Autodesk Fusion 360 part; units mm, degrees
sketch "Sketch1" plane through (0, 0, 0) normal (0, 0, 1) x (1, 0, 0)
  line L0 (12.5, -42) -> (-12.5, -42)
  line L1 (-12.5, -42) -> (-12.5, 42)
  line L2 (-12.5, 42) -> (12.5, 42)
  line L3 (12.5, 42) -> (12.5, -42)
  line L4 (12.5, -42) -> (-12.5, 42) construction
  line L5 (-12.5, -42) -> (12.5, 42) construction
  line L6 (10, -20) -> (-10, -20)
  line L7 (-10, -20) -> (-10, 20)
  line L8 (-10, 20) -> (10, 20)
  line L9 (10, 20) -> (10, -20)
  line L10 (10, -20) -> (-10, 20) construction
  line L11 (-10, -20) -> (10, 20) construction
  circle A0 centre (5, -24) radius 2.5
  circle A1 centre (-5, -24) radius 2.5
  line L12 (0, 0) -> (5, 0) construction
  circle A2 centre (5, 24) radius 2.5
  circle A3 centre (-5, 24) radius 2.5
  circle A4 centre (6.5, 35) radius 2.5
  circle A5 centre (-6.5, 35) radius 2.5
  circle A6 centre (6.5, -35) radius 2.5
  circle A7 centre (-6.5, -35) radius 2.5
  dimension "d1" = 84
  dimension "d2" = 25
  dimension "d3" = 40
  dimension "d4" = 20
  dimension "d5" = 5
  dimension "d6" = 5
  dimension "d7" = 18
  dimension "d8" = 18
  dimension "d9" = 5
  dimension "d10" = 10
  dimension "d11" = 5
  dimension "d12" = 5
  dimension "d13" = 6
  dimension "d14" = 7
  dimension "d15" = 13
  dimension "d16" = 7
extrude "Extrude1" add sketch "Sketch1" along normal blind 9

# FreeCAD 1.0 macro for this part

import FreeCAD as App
import Part
import Sketcher
from FreeCAD import Vector
Q = App.Units.Quantity


def add_polygon(sketch, points):
    """Adds a closed chain of lines whose ends are joined by coincident constraints."""
    first, n = sketch.GeometryCount, len(points)
    for a, b in zip(points, points[1:] + points[:1]):
        sketch.addGeometry(Part.LineSegment(App.Vector(*a, 0), App.Vector(*b, 0)), False)
    for i in range(n):
        sketch.addConstraint(Sketcher.Constraint("Coincident", first + i, 2, first + (i + 1) % n, 1))

doc = App.newDocument("Part")
body = doc.addObject("PartDesign::Body", "Body")

# Sketch on XY plane
sketch1 = doc.addObject("Sketcher::SketchObject", "Sketch")
body.addObject(sketch1)
sketch1.AttachmentSupport = (doc.XY_Plane, [""])
sketch1.MapMode = "FlatFace"
add_polygon(sketch1, [(-12.5, -42), (12.5, -42), (12.5, 42), (-12.5, 42)])  # lines 0-3
sketch1.addGeometry(Part.Circle(Vector(-6.5, -35, 0), Vector(0, 0, 1), 2.5), False)  # 4
sketch1.addGeometry(Part.Circle(Vector(-5, -24, 0), Vector(0, 0, 1), 2.5), False)  # 5
sketch1.addGeometry(Part.Circle(Vector(5, -24, 0), Vector(0, 0, 1), 2.5), False)  # 6
sketch1.addGeometry(Part.Circle(Vector(6.5, -35, 0), Vector(0, 0, 1), 2.5), False)  # 7
sketch1.addGeometry(Part.Circle(Vector(-6.5, 35, 0), Vector(0, 0, 1), 2.5), False)  # 8
sketch1.addGeometry(Part.Circle(Vector(-5, 24, 0), Vector(0, 0, 1), 2.5), False)  # 9
add_polygon(sketch1, [(10, 20), (10, -20), (-10, -20), (-10, 20)])  # lines 10-13
sketch1.addGeometry(Part.Circle(Vector(5, 24, 0), Vector(0, 0, 1), 2.5), False)  # 14
sketch1.addGeometry(Part.Circle(Vector(6.5, 35, 0), Vector(0, 0, 1), 2.5), False)  # 15
sketch1.addConstraint(Sketcher.Constraint("Horizontal", 0))
sketch1.addConstraint(Sketcher.Constraint("Vertical", 1))
sketch1.addConstraint(Sketcher.Constraint("Horizontal", 2))
sketch1.addConstraint(Sketcher.Constraint("Vertical", 3))
sketch1.addConstraint(Sketcher.Constraint("Vertical", 10))
sketch1.addConstraint(Sketcher.Constraint("Horizontal", 11))
sketch1.addConstraint(Sketcher.Constraint("Vertical", 12))
sketch1.addConstraint(Sketcher.Constraint("Horizontal", 13))
sketch1.addConstraint(Sketcher.Constraint("Equal", 4, 5))
sketch1.addConstraint(Sketcher.Constraint("Equal", 5, 6))
sketch1.addConstraint(Sketcher.Constraint("Equal", 6, 7))
sketch1.addConstraint(Sketcher.Constraint("Equal", 7, 8))
sketch1.addConstraint(Sketcher.Constraint("Equal", 8, 9))
sketch1.addConstraint(Sketcher.Constraint("Equal", 9, 14))
sketch1.addConstraint(Sketcher.Constraint("Equal", 14, 15))
sketch1.addConstraint(Sketcher.Constraint("Symmetric", 7, 3, 8, 3, -1, 1))
sketch1.addConstraint(Sketcher.Constraint("Symmetric", 6, 3, 9, 3, -1, 1))
sketch1.addConstraint(Sketcher.Constraint("Symmetric", 5, 3, 14, 3, -1, 1))
sketch1.addConstraint(Sketcher.Constraint("Symmetric", 4, 3, 15, 3, -1, 1))
sketch1.addConstraint(Sketcher.Constraint("Symmetric", 0, 2, 2, 2, -1, 1))
sketch1.addConstraint(Sketcher.Constraint("Symmetric", 10, 2, 12, 2, -1, 1))
sketch1.addConstraint(Sketcher.Constraint("Symmetric", 5, 3, 6, 3, -2))
sketch1.addConstraint(Sketcher.Constraint("Symmetric", 4, 3, 7, 3, -2))
sketch1.addConstraint(Sketcher.Constraint("Diameter", 4, Q("5 mm")))
sketch1.addConstraint(Sketcher.Constraint("DistanceX", 0, 1, 0, 2, Q("25 mm")))
sketch1.addConstraint(Sketcher.Constraint("DistanceX", 11, 2, 11, 1, Q("20 mm")))
sketch1.addConstraint(Sketcher.Constraint("DistanceY", 1, 1, 1, 2, Q("84 mm")))
sketch1.addConstraint(Sketcher.Constraint("DistanceY", 10, 2, 10, 1, Q("40 mm")))
sketch1.addConstraint(Sketcher.Constraint("DistanceX", 5, 3, -1, 1, Q("5 mm")))
sketch1.addConstraint(Sketcher.Constraint("DistanceX", 4, 3, 7, 3, Q("13 mm")))
sketch1.addConstraint(Sketcher.Constraint("DistanceY", 0, 2, 7, 3, Q("7 mm")))
sketch1.addConstraint(Sketcher.Constraint("DistanceY", 0, 2, 6, 3, Q("18 mm")))
pad1 = doc.addObject("PartDesign::Pad", "Pad")
body.addObject(pad1)
pad1.Profile = sketch1
pad1.Length = 9

doc.recompute()
